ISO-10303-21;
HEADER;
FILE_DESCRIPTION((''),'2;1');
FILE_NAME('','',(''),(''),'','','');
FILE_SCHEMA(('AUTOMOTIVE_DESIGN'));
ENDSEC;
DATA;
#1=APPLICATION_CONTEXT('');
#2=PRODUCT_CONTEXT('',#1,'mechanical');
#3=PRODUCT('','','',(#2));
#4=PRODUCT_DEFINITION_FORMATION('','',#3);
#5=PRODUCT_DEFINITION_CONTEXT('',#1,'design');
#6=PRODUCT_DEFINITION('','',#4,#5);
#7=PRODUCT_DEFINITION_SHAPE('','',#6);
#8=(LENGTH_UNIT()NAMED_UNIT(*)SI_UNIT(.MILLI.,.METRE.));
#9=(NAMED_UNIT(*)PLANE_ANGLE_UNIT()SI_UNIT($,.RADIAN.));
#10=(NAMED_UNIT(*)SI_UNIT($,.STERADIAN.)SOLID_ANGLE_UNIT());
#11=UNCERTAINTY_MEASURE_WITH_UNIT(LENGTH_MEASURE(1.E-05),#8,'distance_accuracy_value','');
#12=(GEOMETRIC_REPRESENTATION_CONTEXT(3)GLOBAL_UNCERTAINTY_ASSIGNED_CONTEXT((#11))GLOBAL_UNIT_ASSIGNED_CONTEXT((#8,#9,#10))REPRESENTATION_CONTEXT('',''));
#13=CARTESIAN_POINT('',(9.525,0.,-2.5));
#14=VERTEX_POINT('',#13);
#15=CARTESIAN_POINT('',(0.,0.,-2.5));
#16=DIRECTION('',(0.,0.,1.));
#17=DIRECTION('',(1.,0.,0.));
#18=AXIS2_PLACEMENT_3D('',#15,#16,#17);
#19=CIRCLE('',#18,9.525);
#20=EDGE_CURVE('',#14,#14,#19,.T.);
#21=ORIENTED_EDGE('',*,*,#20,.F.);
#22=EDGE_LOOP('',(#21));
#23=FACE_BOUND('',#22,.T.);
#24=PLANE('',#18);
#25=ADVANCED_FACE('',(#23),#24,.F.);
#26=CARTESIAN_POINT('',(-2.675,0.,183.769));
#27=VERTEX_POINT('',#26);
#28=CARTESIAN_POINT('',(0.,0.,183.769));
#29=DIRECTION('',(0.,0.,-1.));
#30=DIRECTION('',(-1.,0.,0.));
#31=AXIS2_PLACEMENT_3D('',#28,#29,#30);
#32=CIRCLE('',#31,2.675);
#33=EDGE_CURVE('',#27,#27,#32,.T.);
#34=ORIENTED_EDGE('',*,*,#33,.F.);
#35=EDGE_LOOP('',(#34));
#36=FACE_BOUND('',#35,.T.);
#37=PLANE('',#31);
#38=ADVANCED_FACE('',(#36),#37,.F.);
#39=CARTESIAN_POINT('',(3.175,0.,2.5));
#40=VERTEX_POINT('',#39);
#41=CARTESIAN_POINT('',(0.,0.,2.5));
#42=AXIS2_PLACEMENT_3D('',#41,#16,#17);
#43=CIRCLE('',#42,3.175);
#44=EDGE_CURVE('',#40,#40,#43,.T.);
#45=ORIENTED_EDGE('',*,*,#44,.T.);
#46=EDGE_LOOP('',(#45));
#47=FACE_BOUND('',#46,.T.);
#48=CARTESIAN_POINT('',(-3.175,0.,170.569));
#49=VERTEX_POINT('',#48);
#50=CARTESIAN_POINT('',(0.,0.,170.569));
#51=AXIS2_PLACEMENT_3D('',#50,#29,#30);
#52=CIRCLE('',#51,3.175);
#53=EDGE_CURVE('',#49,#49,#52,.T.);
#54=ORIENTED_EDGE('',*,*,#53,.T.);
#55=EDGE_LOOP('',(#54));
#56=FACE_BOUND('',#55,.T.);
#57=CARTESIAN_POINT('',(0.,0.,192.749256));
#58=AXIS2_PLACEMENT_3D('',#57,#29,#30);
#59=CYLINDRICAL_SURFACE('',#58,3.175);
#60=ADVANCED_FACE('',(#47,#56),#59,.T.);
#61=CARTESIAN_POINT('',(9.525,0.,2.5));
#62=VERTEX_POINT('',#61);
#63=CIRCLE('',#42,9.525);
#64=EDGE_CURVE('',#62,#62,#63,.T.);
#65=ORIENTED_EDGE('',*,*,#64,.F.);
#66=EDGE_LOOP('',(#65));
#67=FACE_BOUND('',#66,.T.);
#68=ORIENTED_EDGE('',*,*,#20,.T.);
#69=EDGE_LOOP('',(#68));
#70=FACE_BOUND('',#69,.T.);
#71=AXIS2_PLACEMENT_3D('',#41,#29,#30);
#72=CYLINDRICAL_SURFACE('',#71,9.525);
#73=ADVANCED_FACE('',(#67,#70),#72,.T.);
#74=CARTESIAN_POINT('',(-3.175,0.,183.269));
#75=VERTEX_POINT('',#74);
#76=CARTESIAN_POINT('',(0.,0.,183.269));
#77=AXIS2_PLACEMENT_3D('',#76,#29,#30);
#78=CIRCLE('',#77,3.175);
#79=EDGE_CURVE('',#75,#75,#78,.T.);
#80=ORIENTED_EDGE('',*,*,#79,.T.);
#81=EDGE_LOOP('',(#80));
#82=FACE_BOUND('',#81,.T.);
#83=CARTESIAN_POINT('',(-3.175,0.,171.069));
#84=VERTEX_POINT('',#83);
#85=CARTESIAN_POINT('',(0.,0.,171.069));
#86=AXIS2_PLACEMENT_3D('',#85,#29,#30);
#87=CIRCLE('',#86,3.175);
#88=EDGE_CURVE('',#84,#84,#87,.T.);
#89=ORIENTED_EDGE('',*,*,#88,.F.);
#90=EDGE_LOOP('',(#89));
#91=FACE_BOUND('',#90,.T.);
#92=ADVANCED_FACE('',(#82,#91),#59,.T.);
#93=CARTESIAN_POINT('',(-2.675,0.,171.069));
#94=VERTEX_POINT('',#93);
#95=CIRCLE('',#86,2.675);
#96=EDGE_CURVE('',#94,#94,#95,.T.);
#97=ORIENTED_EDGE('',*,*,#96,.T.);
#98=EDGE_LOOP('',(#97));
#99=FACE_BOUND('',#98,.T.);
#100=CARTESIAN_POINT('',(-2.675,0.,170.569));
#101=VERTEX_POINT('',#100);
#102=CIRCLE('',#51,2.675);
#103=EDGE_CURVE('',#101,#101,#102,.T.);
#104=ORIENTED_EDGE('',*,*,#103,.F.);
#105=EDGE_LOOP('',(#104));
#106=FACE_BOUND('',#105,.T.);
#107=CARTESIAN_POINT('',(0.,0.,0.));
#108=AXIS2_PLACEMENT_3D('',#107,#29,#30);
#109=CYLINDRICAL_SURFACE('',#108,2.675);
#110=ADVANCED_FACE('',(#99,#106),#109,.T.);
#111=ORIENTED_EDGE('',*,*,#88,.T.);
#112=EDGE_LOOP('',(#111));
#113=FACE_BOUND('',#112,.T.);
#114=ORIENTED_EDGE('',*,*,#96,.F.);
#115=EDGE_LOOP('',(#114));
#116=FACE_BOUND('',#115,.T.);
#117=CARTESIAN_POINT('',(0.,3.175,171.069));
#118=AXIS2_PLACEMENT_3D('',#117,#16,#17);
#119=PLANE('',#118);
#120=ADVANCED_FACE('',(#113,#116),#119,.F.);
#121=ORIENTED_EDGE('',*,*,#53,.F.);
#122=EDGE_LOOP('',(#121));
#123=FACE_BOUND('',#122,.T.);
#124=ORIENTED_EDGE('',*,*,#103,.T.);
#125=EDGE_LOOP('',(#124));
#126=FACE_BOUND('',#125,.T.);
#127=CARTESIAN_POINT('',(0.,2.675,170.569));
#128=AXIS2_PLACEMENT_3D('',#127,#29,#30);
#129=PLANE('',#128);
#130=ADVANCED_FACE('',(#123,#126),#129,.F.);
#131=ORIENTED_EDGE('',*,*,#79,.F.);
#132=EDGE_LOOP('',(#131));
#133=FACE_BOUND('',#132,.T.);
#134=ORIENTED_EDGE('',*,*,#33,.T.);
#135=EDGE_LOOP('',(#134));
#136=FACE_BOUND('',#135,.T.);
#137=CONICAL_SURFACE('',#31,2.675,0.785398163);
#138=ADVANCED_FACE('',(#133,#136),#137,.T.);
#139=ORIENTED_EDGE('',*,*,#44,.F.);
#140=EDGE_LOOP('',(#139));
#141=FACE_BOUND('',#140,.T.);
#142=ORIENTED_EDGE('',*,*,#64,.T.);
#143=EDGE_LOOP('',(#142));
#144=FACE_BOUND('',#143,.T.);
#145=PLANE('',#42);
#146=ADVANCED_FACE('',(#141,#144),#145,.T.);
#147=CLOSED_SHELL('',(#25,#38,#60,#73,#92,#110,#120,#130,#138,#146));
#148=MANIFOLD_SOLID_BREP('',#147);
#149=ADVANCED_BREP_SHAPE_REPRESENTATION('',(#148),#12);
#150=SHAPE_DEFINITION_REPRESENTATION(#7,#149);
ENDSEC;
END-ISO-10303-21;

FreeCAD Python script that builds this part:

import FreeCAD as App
import Part
import Sketcher
from FreeCAD import Vector
Q = App.Units.Quantity


def add_polygon(sketch, points):
    """Adds a closed chain of lines whose ends are joined by coincident constraints."""
    first, n = sketch.GeometryCount, len(points)
    for a, b in zip(points, points[1:] + points[:1]):
        sketch.addGeometry(Part.LineSegment(App.Vector(*a, 0), App.Vector(*b, 0)), False)
    for i in range(n):
        sketch.addConstraint(Sketcher.Constraint("Coincident", first + i, 2, first + (i + 1) % n, 1))

doc = App.newDocument("Part")
body = doc.addObject("PartDesign::Body", "Body")

sketch1 = doc.addObject("Sketcher::SketchObject", "Sketch")
body.addObject(sketch1)
sketch1.AttachmentSupport = (doc.XY_Plane, [""])
sketch1.MapMode = "FlatFace"
sketch1.addGeometry(Part.Circle(Vector(0, 0, 0), Vector(0, 0, 1), 3.2), False)
sketch1.addConstraint(Sketcher.Constraint("Coincident", 0, 3, -1, 1))
sketch1.addConstraint(Sketcher.Constraint("Diameter", 0, Q("6.35 mm")))
pad1 = doc.addObject("PartDesign::Pad", "Pad")
body.addObject(pad1)
pad1.Profile = sketch1
pad1.Length = 183.769

sketch2 = doc.addObject("Sketcher::SketchObject", "Sketch001")
body.addObject(sketch2)
sketch2.AttachmentSupport = (doc.XY_Plane, [""])
sketch2.MapMode = "FlatFace"
sketch2.addGeometry(Part.Circle(Vector(0, 0, 0), Vector(0, 0, 1), 10), False)
sketch2.addConstraint(Sketcher.Constraint("Coincident", 0, 3, -1, 1))
sketch2.addConstraint(Sketcher.Constraint("Diameter", 0, Q("19.05 mm")))
pad2 = doc.addObject("PartDesign::Pad", "Pad001")
body.addObject(pad2)
pad2.Profile = sketch2
pad2.Length = 5
pad2.Midplane = True

sketch3 = doc.addObject("Sketcher::SketchObject", "Sketch002")
body.addObject(sketch3)
sketch3.AttachmentSupport = (doc.YZ_Plane, [""])
sketch3.MapMode = "FlatFace"
add_polygon(sketch3, [(9.5, 170.6), (9.5, 183.8), (2.7, 183.8), (3.2, 183.3), (3.2, 171.1), (2.7, 171.1), (2.7, 170.6)])
sketch3.addConstraint(Sketcher.Constraint("Vertical", 0))
sketch3.addConstraint(Sketcher.Constraint("Horizontal", 1))
sketch3.addConstraint(Sketcher.Constraint("Vertical", 3))
sketch3.addConstraint(Sketcher.Constraint("Horizontal", 4))
sketch3.addConstraint(Sketcher.Constraint("Vertical", 5))
sketch3.addConstraint(Sketcher.Constraint("Horizontal", 6))
sketch3.addConstraint(Sketcher.Constraint("Vertical", 1, 2, 4, 2))
sketch3.addConstraint(Sketcher.Constraint("Equal", 4, 5))
sketch3.addConstraint(Sketcher.Constraint("Angle", 2, Q("-45 deg")))
sketch3.addConstraint(Sketcher.Constraint("DistanceX", 4, 2, 4, 1, Q("0.5 mm")))
sketch3.addConstraint(Sketcher.Constraint("DistanceY", 0, 1, 0, 2, Q("13.2 mm")))
sketch3.addConstraint(Sketcher.Constraint("DistanceX", 1, 2, 1, 1, Q("6.85 mm")))
sketch3.addConstraint(Sketcher.Constraint("DistanceX", -1, 1, 0, 2, Q("9.525 mm")))
sketch3.addConstraint(Sketcher.Constraint("DistanceY", -1, 1, 0, 2, Q("183.769 mm")))
groove = doc.addObject("PartDesign::Groove", "Groove")
body.addObject(groove)
groove.Profile = sketch3
groove.ReferenceAxis = (sketch3, ["V_Axis"])
groove.Angle = 360

doc.recompute()
